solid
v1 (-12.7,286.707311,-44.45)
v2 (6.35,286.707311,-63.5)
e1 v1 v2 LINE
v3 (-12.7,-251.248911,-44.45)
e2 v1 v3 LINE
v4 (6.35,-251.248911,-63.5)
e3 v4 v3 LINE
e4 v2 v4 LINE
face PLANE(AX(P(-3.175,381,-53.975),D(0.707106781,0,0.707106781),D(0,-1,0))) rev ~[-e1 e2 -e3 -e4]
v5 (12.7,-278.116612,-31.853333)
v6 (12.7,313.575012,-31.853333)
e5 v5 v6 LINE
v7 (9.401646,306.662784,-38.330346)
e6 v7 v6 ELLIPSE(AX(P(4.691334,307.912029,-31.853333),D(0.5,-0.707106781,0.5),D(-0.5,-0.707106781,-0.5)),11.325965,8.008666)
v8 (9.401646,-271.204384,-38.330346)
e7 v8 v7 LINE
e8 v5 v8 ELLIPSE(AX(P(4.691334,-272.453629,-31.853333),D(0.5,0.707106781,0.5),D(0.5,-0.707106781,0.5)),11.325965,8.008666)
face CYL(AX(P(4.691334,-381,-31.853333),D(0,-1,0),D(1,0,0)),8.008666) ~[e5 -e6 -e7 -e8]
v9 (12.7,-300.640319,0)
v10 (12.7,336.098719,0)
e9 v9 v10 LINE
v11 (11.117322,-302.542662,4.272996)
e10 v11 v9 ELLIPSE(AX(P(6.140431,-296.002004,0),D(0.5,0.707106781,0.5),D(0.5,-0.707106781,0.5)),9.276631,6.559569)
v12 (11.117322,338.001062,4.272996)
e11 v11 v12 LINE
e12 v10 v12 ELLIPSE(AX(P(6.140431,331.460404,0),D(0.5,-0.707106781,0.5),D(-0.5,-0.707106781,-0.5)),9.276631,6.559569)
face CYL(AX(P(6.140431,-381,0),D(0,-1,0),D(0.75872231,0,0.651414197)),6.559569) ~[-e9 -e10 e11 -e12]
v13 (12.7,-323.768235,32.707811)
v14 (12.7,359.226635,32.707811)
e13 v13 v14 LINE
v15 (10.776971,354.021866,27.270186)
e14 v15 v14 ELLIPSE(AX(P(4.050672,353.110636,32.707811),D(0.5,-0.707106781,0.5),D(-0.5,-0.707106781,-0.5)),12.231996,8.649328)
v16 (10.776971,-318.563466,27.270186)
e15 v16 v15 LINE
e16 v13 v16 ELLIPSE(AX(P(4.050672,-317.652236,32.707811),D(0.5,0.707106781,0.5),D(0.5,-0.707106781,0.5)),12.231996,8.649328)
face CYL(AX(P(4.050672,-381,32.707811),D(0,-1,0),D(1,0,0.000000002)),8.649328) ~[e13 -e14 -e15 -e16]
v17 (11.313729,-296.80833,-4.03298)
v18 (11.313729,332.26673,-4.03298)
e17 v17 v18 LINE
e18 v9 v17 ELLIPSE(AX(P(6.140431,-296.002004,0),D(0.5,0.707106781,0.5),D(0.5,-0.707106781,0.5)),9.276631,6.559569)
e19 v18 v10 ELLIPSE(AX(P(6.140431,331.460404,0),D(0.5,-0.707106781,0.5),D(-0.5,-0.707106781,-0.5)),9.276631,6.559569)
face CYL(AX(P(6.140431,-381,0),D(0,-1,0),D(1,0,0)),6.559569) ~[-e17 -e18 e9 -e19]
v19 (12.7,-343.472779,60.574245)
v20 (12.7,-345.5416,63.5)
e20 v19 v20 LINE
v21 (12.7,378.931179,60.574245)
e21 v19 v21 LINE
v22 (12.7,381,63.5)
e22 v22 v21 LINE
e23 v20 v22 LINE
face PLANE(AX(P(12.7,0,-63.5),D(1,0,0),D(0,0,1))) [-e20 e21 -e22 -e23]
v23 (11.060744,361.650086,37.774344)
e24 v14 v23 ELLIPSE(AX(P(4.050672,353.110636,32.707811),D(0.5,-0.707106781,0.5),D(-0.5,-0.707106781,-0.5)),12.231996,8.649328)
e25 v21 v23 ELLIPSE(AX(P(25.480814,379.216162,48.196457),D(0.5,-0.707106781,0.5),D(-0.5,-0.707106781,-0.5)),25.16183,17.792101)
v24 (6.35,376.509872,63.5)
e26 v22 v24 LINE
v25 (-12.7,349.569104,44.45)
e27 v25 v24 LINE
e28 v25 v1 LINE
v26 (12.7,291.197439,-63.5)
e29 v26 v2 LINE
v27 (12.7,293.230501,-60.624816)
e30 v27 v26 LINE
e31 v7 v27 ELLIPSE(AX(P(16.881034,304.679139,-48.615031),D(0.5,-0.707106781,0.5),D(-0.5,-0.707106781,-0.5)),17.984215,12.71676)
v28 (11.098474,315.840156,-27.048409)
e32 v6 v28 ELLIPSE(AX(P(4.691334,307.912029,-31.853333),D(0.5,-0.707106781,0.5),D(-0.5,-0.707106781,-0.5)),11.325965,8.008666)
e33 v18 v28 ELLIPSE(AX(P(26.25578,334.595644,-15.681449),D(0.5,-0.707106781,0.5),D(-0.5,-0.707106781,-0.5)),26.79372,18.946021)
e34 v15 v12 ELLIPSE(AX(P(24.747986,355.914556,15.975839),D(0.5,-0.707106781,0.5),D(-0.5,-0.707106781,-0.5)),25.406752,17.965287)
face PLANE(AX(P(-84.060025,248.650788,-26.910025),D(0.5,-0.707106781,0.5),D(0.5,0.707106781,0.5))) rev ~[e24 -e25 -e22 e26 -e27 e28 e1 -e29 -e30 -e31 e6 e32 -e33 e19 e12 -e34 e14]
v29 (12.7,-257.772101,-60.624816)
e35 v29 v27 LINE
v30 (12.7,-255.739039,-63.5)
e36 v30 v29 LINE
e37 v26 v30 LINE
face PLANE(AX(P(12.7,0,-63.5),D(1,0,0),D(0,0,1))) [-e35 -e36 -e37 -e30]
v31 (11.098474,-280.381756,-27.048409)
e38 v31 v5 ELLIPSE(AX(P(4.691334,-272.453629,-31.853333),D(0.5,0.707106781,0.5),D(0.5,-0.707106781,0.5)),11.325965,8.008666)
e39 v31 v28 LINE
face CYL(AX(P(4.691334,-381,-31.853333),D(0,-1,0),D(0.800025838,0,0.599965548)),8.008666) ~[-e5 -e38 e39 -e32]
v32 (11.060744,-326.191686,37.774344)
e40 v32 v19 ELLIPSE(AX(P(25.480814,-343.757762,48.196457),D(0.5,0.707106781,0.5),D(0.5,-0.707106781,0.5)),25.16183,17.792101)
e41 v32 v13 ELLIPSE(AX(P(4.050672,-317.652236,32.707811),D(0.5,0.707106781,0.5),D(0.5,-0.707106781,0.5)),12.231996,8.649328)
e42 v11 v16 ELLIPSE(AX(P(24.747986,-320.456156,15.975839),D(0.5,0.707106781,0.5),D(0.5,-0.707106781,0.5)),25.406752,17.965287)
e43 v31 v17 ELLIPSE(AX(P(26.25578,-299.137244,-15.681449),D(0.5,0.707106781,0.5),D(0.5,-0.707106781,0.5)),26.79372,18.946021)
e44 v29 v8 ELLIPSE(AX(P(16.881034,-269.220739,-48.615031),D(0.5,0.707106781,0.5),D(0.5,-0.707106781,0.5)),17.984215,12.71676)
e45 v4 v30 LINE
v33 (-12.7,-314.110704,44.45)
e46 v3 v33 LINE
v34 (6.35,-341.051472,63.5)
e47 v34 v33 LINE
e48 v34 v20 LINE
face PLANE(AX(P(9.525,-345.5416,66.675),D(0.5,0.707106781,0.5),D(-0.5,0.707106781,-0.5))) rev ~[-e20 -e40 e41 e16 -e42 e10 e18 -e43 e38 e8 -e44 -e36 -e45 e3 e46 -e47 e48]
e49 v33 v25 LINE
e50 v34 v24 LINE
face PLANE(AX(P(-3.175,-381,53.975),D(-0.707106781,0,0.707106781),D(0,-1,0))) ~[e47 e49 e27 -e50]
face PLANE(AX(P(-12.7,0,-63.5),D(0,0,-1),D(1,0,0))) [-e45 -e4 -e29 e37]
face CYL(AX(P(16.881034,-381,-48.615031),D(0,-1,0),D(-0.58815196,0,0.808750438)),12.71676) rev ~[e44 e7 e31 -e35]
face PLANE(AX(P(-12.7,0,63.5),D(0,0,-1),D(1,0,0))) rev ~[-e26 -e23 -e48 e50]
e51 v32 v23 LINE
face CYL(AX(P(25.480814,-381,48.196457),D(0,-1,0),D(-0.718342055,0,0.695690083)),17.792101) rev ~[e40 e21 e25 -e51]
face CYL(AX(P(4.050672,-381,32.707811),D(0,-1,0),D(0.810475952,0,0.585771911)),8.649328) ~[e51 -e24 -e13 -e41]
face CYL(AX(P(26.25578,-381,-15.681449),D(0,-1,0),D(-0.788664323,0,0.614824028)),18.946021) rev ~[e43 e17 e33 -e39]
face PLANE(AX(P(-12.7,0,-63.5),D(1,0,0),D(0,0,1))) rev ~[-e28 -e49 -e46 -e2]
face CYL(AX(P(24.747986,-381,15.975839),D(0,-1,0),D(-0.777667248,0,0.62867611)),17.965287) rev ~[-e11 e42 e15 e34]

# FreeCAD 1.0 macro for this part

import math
import FreeCAD as App
import Part
import Sketcher

V = App.Vector
Q = App.Units.Quantity


def edges_at(feature, points):
    """Names of the edges that pass closest to the given points."""
    edges = feature.Shape.Edges
    near = lambda p: min(range(len(edges)), key=lambda i: edges[i].distToShape(Part.Vertex(*p))[0])
    return sorted({f"Edge{near(p) + 1}" for p in points})

doc = App.newDocument("Part")
params = doc.addObject("Spreadsheet::Sheet", "Params")
for row, (alias, value) in enumerate([
    ("sketch1_width", "1 in"),
    ("sketch1_height", "5 in"),
    ("pad1_length", "30 in"),
    ("chamfer_size", "0.75 in"),
    ("sketch3_width", "1.396 in"),
], start=1):
    params.set(f"A{row}", alias)
    params.set(f"B{row}", "=" + value)
    params.setAlias(f"B{row}", alias)

body = doc.addObject("PartDesign::Body", "Body")

# Sketch on XZ plane
sketch1 = body.newObject("Sketcher::SketchObject", "Sketch")
sketch1.AttachmentSupport = (doc.getObject("XZ_Plane"), [""])
sketch1.MapMode = "FlatFace"
sketch1.addGeometry(Part.LineSegment(V(-13, 64, 0), V(-13, -64, 0)), False)
sketch1.addGeometry(Part.LineSegment(V(-13, -64, 0), V(13, -64, 0)), False)
sketch1.addGeometry(Part.LineSegment(V(13, -64, 0), V(13, 64, 0)), False)
sketch1.addGeometry(Part.LineSegment(V(13, 64, 0), V(-13, 64, 0)), False)
sketch1.addConstraint(Sketcher.Constraint("Coincident", 0, 2, 1, 1))
sketch1.addConstraint(Sketcher.Constraint("Coincident", 1, 2, 2, 1))
sketch1.addConstraint(Sketcher.Constraint("Coincident", 2, 2, 3, 1))
sketch1.addConstraint(Sketcher.Constraint("Coincident", 3, 2, 0, 1))
sketch1.addConstraint(Sketcher.Constraint("Vertical", 0))
sketch1.addConstraint(Sketcher.Constraint("Horizontal", 1))
sketch1.addConstraint(Sketcher.Constraint("Vertical", 2))
sketch1.addConstraint(Sketcher.Constraint("Horizontal", 3))
sketch1.addConstraint(Sketcher.Constraint("Symmetric", 0, 2, 2, 2, -1, 1))
sketch1.addConstraint(Sketcher.Constraint("DistanceX", 1, 1, 1, 2, Q("1 in")))
sketch1.addConstraint(Sketcher.Constraint("DistanceY", 0, 2, 0, 1, Q("5 in")))
sketch1.setExpression("Constraints[9]", "Params.sketch1_width")
sketch1.setExpression("Constraints[10]", "Params.sketch1_height")
pad1 = body.newObject("PartDesign::Pad", "Pad")
pad1.Profile = sketch1
pad1.setExpression("Length", "Params.pad1_length")
pad1.Midplane = True
doc.recompute()

chamfer = body.newObject("PartDesign::Chamfer", "Chamfer")
chamfer.Base = (pad1, edges_at(pad1, [(-12.7, 0, 63.5), (-12.7, 0, -63.5)]))
chamfer.setExpression("Size", "Params.chamfer_size")

# Sketch on XZ plane
sketch2 = body.newObject("Sketcher::SketchObject", "Sketch001")
sketch2.AttachmentSupport = (doc.getObject("XZ_Plane"), [""])
sketch2.MapMode = "FlatFace"
sketch2.AttachmentOffset = App.Placement(V(0, 0, 15 * 25.4), App.Rotation())
sketch2.addGeometry(Part.ArcOfCircle(Part.Circle(V(4.1, 32.7, 0), V(0, 0, 1), 8.6), math.radians(0), math.radians(36)), False)
sketch2.addGeometry(Part.LineSegment(V(12.7, 32.7, 0), V(12.7, 60.6, 0)), False)
sketch2.addGeometry(Part.ArcOfCircle(Part.Circle(V(25.5, 48.2, 0), V(0, 0, 1), 17.8), math.radians(136), math.radians(216)), False)
sketch2.addGeometry(Part.ArcOfCircle(Part.Circle(V(4.1, 32.7, 0), V(0, 0, 1), 8.6), math.radians(-39), math.radians(0)), False)
sketch2.addGeometry(Part.ArcOfCircle(Part.Circle(V(24.7, 16, 0), V(0, 0, 1), 18), math.radians(141), math.radians(221)), False)
sketch2.addGeometry(Part.ArcOfCircle(Part.Circle(V(6.1, 0, 0), V(0, 0, 1), 6.6), math.radians(0), math.radians(41)), False)
sketch2.addGeometry(Part.LineSegment(V(12.7, 0, 0), V(12.7, 32.7, 0)), False)
sketch2.addGeometry(Part.LineSegment(V(12.7, -31.9, 0), V(12.7, 0, 0)), False)
sketch2.addGeometry(Part.ArcOfCircle(Part.Circle(V(6.1, 0, 0), V(0, 0, 1), 6.6), math.radians(-38), math.radians(0)), False)
sketch2.addGeometry(Part.ArcOfCircle(Part.Circle(V(26.3, -15.7, 0), V(0, 0, 1), 18.9), math.radians(142), math.radians(217)), False)
sketch2.addGeometry(Part.ArcOfCircle(Part.Circle(V(4.7, -31.9, 0), V(0, 0, 1), 8), math.radians(0), math.radians(37)), False)
sketch2.addGeometry(Part.LineSegment(V(12.7, -60.6, 0), V(12.7, -31.9, 0)), False)
sketch2.addGeometry(Part.ArcOfCircle(Part.Circle(V(4.7, -31.9, 0), V(0, 0, 1), 8), math.radians(-54), math.radians(0)), False)
sketch2.addGeometry(Part.ArcOfCircle(Part.Circle(V(16.9, -48.6, 0), V(0, 0, 1), 12.7), math.radians(126), math.radians(251)), False)
sketch2.addConstraint(Sketcher.Constraint("Tangent", 0, 1, 1, 1))
sketch2.addConstraint(Sketcher.Constraint("Coincident", 1, 2, 2, 1))
sketch2.addConstraint(Sketcher.Constraint("Tangent", 2, 2, 0, 2))
sketch2.addConstraint(Sketcher.Constraint("Tangent", 3, 1, 4, 1))
sketch2.addConstraint(Sketcher.Constraint("Tangent", 4, 2, 5, 2))
sketch2.addConstraint(Sketcher.Constraint("Tangent", 5, 1, 6, 1))
sketch2.addConstraint(Sketcher.Constraint("Tangent", 6, 2, 3, 2))
sketch2.addConstraint(Sketcher.Constraint("Tangent", 7, 2, 8, 2))
sketch2.addConstraint(Sketcher.Constraint("Tangent", 8, 1, 9, 1))
sketch2.addConstraint(Sketcher.Constraint("Tangent", 9, 2, 10, 2))
sketch2.addConstraint(Sketcher.Constraint("Tangent", 10, 1, 7, 1))
sketch2.addConstraint(Sketcher.Constraint("Tangent", 11, 2, 12, 2))
sketch2.addConstraint(Sketcher.Constraint("Tangent", 12, 1, 13, 1))
sketch2.addConstraint(Sketcher.Constraint("Coincident", 13, 2, 11, 1))
sketch2.addConstraint(Sketcher.Constraint("Vertical", 1))
sketch2.addConstraint(Sketcher.Constraint("Vertical", 6))
sketch2.addConstraint(Sketcher.Constraint("Vertical", 7))
sketch2.addConstraint(Sketcher.Constraint("Vertical", 11))
sketch2.addConstraint(Sketcher.Constraint("Coincident", 3, 3, 0, 3))
sketch2.addConstraint(Sketcher.Constraint("Coincident", 8, 3, 5, 3))
sketch2.addConstraint(Sketcher.Constraint("Coincident", 12, 3, 10, 3))
sketch2.addConstraint(Sketcher.Constraint("Equal", 0, 3))
sketch2.addConstraint(Sketcher.Constraint("Equal", 5, 8))
sketch2.addConstraint(Sketcher.Constraint("Equal", 10, 12))
sketch2.addConstraint(Sketcher.Constraint("PointOnObject", 5, 3, -1))
sketch2.addConstraint(Sketcher.Constraint("DistanceX", -1, 1, 0, 1, Q("0.5 in")))
sketch2.addConstraint(Sketcher.Constraint("Radius", 2, Q("17.792101 mm")))
sketch2.addConstraint(Sketcher.Constraint("Radius", 5, Q("6.559569 mm")))
sketch2.addConstraint(Sketcher.Constraint("Radius", 9, Q("18.946021 mm")))
sketch2.addConstraint(Sketcher.Constraint("Radius", 13, Q("12.71676 mm")))
sketch2.addConstraint(Sketcher.Constraint("Radius", 0, Q("8.649328 mm")))
sketch2.addConstraint(Sketcher.Constraint("Radius", 4, Q("17.965287 mm")))
sketch2.addConstraint(Sketcher.Constraint("Radius", 10, Q("8.008666 mm")))
sketch2.addConstraint(Sketcher.Constraint("DistanceY", 6, 1, 6, 2, Q("32.707811 mm")))
sketch2.addConstraint(Sketcher.Constraint("DistanceX", 10, 3, 13, 3, Q("12.1897 mm")))
sketch2.addConstraint(Sketcher.Constraint("DistanceY", 2, 2, 1, 2, Q("22.799901 mm")))
sketch2.addConstraint(Sketcher.Constraint("DistanceY", 7, 1, 7, 2, Q("31.853333 mm")))
pocket1 = body.newObject("PartDesign::Pocket", "Pocket")
pocket1.Profile = sketch2
pocket1.Type = "ThroughAll"

# Sketch on an angled plane
sketch3 = body.newObject("Sketcher::SketchObject", "Sketch002")
sketch3.Placement = App.Placement(V(-28.575, 0, 28.575), App.Rotation(V(0, -1, 0), V(0.707106781, 0, 0.707106781), V(-0.707106781, 0, 0.707106781), "ZXY"))
sketch3.addGeometry(Part.LineSegment(V(239, -53, 0), V(381, -53, 0)), False)
sketch3.addGeometry(Part.LineSegment(V(381, -53, 0), V(381, 54, 0)), False)
sketch3.addGeometry(Part.LineSegment(V(381, 54, 0), V(346, 54, 0)), False)
sketch3.addGeometry(Part.LineSegment(V(346, 54, 0), V(239, -53, 0)), False)
sketch3.addGeometry(Part.LineSegment(V(-381, -78, 0), V(-249, -78, 0)), False)
sketch3.addGeometry(Part.LineSegment(V(-249, -78, 0), V(-381, 54, 0)), False)
sketch3.addGeometry(Part.LineSegment(V(-381, 54, 0), V(-381, -78, 0)), False)
sketch3.addConstraint(Sketcher.Constraint("Coincident", 0, 2, 1, 1))
sketch3.addConstraint(Sketcher.Constraint("Coincident", 1, 2, 2, 1))
sketch3.addConstraint(Sketcher.Constraint("Coincident", 2, 2, 3, 1))
sketch3.addConstraint(Sketcher.Constraint("Coincident", 3, 2, 0, 1))
sketch3.addConstraint(Sketcher.Constraint("Coincident", 4, 2, 5, 1))
sketch3.addConstraint(Sketcher.Constraint("Coincident", 5, 2, 6, 1))
sketch3.addConstraint(Sketcher.Constraint("Coincident", 6, 2, 4, 1))
sketch3.addConstraint(Sketcher.Constraint("Horizontal", 0))
sketch3.addConstraint(Sketcher.Constraint("Vertical", 1))
sketch3.addConstraint(Sketcher.Constraint("Horizontal", 2))
sketch3.addConstraint(Sketcher.Constraint("Horizontal", 4))
sketch3.addConstraint(Sketcher.Constraint("Vertical", 6))
sketch3.addConstraint(Sketcher.Constraint("Symmetric", 1, 2, 5, 2, -2))
sketch3.addConstraint(Sketcher.Constraint("Perpendicular", 3, 5))
sketch3.addConstraint(Sketcher.Constraint("Equal", 4, 6))
sketch3.addConstraint(Sketcher.Constraint("DistanceX", -1, 1, 0, 2, Q("15 in")))
sketch3.addConstraint(Sketcher.Constraint("DistanceX", 2, 2, 2, 1, Q("1.396 in")))
sketch3.addConstraint(Sketcher.Constraint("DistanceX", 4, 1, 4, 2, Q("132.349212 mm")))
sketch3.addConstraint(Sketcher.Constraint("DistanceX", 0, 1, 0, 2, Q("142.225376 mm")))
sketch3.addConstraint(Sketcher.Constraint("DistanceY", 0, 2, -1, 1, Q("52.885439 mm")))
sketch3.setExpression("Constraints[16]", "Params.sketch3_width")
pocket2 = body.newObject("PartDesign::Pocket", "Pocket001")
pocket2.Profile = sketch3
pocket2.Type = "ThroughAll"

doc.recompute()
